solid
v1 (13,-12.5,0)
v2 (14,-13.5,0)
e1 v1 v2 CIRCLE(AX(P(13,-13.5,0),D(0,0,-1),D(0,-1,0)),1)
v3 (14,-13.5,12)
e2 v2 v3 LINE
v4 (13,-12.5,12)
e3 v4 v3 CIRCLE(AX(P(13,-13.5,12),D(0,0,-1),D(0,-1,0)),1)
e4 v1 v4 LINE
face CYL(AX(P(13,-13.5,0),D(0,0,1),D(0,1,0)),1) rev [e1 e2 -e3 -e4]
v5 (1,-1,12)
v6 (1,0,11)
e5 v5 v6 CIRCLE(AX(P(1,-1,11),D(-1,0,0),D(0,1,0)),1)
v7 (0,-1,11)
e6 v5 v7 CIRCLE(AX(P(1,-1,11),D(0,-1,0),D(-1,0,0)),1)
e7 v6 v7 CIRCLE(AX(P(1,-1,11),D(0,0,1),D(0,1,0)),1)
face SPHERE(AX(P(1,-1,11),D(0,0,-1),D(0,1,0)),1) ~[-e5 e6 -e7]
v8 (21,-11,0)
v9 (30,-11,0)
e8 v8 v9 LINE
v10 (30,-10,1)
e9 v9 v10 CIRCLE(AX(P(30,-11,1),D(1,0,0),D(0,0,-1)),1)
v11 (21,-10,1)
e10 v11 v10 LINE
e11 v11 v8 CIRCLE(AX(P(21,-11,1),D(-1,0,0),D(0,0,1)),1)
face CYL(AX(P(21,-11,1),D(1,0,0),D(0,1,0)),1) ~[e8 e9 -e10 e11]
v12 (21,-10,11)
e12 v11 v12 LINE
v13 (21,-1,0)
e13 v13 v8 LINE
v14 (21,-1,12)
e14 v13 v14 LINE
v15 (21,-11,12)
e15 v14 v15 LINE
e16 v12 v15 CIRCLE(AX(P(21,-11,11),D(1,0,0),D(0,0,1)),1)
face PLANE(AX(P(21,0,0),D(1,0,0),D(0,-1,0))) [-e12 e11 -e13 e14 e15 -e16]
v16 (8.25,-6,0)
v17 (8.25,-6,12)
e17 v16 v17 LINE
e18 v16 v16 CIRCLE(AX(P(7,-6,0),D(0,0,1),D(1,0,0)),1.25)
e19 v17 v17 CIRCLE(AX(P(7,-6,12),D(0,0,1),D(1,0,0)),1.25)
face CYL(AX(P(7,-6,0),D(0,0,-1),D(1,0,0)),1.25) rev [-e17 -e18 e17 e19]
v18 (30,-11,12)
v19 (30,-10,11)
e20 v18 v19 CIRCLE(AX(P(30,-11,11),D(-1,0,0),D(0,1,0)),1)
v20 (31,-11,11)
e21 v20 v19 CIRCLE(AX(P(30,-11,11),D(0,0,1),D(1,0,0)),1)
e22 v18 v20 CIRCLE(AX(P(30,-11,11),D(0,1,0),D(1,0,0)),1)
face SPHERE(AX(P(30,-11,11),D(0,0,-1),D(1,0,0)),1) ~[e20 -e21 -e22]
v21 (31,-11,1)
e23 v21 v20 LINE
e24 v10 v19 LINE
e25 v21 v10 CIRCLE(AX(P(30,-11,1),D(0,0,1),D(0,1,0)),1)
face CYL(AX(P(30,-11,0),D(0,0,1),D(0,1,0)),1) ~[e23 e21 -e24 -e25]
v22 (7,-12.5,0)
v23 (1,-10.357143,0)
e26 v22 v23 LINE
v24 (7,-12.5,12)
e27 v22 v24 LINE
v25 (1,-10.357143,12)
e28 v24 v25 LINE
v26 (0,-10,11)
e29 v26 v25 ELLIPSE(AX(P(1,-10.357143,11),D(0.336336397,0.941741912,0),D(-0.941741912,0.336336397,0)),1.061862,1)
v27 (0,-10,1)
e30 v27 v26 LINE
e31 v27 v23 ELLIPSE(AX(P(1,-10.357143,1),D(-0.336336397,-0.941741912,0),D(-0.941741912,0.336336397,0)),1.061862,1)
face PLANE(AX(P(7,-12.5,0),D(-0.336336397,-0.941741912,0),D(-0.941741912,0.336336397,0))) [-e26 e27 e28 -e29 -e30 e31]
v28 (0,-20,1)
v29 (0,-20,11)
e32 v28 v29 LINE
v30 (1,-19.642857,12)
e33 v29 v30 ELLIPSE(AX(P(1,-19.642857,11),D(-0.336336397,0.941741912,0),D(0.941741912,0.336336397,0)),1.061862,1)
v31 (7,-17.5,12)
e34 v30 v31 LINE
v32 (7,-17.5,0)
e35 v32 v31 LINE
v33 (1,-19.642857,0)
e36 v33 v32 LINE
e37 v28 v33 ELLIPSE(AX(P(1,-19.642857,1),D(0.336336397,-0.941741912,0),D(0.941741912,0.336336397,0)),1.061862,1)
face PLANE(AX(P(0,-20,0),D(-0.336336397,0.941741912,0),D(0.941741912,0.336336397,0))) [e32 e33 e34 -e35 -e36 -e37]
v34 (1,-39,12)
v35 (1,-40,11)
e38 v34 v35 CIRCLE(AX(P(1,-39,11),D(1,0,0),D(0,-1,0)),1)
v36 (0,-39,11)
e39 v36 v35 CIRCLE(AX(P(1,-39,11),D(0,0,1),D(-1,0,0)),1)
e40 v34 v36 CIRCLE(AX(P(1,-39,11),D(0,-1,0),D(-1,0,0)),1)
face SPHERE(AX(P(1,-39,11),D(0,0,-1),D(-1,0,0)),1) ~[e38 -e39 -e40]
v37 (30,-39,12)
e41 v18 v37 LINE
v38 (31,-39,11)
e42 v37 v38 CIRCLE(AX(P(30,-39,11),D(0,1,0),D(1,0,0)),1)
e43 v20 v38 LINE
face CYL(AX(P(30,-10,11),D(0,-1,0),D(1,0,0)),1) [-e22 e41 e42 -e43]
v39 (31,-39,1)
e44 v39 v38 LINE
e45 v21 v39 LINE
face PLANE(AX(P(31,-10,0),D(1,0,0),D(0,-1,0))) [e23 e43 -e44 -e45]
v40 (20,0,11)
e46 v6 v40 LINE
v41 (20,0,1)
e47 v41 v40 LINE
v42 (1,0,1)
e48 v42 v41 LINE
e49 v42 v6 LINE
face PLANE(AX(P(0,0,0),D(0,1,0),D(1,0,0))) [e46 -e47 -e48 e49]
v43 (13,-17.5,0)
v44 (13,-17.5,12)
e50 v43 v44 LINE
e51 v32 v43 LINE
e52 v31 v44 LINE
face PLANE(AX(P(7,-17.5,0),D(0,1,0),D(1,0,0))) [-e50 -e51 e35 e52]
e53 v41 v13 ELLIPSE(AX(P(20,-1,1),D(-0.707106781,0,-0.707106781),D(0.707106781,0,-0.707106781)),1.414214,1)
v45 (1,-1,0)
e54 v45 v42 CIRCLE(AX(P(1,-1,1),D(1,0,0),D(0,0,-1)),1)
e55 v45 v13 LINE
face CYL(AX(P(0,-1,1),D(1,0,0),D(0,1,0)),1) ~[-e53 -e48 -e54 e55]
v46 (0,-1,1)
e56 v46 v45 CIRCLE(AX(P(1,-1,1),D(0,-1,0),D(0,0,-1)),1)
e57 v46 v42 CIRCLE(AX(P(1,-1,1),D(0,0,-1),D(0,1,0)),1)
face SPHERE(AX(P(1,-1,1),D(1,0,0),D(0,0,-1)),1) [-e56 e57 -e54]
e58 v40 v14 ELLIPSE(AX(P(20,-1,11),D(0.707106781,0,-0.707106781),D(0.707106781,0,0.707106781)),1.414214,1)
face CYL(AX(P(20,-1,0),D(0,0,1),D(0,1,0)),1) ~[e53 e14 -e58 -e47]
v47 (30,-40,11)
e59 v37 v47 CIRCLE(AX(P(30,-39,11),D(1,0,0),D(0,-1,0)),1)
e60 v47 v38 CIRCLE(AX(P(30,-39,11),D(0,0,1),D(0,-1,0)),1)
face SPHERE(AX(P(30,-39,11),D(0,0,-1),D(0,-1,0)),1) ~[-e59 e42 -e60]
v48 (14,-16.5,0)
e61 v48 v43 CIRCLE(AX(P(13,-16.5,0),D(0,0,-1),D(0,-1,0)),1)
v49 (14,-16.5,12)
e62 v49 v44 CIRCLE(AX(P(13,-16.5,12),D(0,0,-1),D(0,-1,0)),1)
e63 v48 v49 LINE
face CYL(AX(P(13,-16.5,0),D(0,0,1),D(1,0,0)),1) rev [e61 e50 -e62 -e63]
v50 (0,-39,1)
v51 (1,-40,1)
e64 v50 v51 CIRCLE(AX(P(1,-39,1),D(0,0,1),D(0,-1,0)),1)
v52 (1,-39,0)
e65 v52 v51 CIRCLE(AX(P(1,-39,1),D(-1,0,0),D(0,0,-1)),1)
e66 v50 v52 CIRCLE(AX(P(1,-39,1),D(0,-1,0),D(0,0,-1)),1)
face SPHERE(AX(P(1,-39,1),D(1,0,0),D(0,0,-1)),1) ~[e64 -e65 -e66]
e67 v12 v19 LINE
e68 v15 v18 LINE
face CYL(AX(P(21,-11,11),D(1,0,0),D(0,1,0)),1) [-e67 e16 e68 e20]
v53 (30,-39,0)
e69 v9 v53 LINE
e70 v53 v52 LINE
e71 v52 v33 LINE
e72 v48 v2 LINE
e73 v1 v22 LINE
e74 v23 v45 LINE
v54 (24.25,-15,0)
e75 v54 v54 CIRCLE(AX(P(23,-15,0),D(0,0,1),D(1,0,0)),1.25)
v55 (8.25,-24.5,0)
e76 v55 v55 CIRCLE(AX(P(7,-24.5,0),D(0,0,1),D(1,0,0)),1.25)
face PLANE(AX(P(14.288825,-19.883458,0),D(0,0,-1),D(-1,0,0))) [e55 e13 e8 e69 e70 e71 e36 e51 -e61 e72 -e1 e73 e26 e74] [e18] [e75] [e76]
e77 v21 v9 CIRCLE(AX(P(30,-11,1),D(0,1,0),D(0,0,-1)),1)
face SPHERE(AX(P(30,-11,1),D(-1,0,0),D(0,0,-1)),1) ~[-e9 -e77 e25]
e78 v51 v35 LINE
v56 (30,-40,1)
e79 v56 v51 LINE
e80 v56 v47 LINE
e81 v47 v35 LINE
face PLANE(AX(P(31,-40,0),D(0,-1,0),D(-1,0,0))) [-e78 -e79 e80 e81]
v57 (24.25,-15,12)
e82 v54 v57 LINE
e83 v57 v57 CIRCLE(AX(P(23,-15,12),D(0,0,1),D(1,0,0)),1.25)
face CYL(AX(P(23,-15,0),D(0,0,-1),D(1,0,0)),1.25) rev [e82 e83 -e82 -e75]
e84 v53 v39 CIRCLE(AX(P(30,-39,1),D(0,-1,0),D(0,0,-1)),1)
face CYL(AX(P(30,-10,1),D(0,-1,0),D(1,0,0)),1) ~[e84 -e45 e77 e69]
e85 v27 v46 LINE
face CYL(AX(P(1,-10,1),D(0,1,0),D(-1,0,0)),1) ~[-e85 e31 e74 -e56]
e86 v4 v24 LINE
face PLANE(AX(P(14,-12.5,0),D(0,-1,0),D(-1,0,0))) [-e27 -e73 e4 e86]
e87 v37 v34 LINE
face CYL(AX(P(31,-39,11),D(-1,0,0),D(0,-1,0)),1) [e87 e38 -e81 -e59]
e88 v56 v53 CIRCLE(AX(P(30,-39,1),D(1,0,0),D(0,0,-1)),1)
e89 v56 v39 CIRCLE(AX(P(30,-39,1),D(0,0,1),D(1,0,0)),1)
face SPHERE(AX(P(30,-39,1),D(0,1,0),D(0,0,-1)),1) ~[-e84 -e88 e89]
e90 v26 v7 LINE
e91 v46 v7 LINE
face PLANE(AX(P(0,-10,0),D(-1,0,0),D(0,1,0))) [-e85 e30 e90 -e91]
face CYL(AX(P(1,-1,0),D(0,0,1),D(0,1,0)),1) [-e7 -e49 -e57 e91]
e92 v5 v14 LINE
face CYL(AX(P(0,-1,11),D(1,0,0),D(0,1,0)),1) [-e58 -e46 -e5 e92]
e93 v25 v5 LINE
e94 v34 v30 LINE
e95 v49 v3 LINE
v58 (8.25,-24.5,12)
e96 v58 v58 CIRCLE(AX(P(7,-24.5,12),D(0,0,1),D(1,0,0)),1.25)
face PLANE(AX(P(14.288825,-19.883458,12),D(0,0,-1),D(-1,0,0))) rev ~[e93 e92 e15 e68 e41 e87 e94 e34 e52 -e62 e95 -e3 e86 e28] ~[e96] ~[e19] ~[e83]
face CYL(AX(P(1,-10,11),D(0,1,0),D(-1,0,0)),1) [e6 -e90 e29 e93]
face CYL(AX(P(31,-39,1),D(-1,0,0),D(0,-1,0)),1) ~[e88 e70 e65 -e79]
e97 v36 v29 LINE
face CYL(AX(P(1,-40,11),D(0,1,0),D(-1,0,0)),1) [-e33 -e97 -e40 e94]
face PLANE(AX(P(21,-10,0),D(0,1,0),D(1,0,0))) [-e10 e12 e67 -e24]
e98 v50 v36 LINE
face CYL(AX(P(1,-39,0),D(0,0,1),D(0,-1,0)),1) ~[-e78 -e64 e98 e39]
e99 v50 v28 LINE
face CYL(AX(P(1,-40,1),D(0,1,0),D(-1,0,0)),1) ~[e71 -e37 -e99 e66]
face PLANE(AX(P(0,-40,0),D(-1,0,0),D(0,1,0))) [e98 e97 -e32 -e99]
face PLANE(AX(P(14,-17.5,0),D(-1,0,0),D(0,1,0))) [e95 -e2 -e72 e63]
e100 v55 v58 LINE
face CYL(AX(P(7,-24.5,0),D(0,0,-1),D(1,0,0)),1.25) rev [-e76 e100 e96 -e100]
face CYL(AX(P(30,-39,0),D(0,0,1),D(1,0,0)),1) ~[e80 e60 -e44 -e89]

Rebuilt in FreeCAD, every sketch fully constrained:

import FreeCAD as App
import Part
import Sketcher
Q = App.Units.Quantity


def edges_at(feature, points):
    """Names of the edges that pass closest to the given points."""
    edges = feature.Shape.Edges
    near = lambda p: min(range(len(edges)), key=lambda i: edges[i].distToShape(Part.Vertex(*p))[0])
    return sorted({f"Edge{near(p) + 1}" for p in points})

doc = App.newDocument("Part")
body = doc.addObject("PartDesign::Body", "Body")

# Sketch on XY plane
sketch1 = body.newObject("Sketcher::SketchObject", "Sketch")
sketch1.AttachmentSupport = (doc.getObject("XY_Plane"), [""])
sketch1.MapMode = "FlatFace"
sketch1.addGeometry([
    Part.LineSegment(App.Vector(21, 0, 0), App.Vector(0, 0, 0)),  # 0
    Part.LineSegment(App.Vector(0, 0, 0), App.Vector(0, -10, 0)),  # 1
    Part.LineSegment(App.Vector(0, -10, 0), App.Vector(7, -12.5, 0)),  # 2
    Part.LineSegment(App.Vector(7, -12.5, 0), App.Vector(14, -12.5, 0)),  # 3
    Part.LineSegment(App.Vector(14, -12.5, 0), App.Vector(14, -17.5, 0)),  # 4
    Part.LineSegment(App.Vector(14, -17.5, 0), App.Vector(7, -17.5, 0)),  # 5
    Part.LineSegment(App.Vector(7, -17.5, 0), App.Vector(0, -20, 0)),  # 6
    Part.LineSegment(App.Vector(0, -20, 0), App.Vector(0, -40, 0)),  # 7
    Part.LineSegment(App.Vector(0, -40, 0), App.Vector(31, -40, 0)),  # 8
    Part.LineSegment(App.Vector(31, -40, 0), App.Vector(31, -10, 0)),  # 9
    Part.LineSegment(App.Vector(31, -10, 0), App.Vector(21, -10, 0)),  # 10
    Part.LineSegment(App.Vector(21, -10, 0), App.Vector(21, 0, 0)),  # 11
    Part.Circle(App.Vector(7, -24.5, 0), App.Vector(0, 0, 1), 1.2),  # 12
    Part.Circle(App.Vector(23, -15, 0), App.Vector(0, 0, 1), 1.2),  # 13
    Part.Circle(App.Vector(7, -6, 0), App.Vector(0, 0, 1), 1.2),  # 14
], False)
sketch1.addConstraint([
    Sketcher.Constraint("Coincident", 0, 2, 1, 1),
    Sketcher.Constraint("Coincident", 1, 2, 2, 1),
    Sketcher.Constraint("Coincident", 2, 2, 3, 1),
    Sketcher.Constraint("Coincident", 3, 2, 4, 1),
    Sketcher.Constraint("Coincident", 4, 2, 5, 1),
    Sketcher.Constraint("Coincident", 5, 2, 6, 1),
    Sketcher.Constraint("Coincident", 6, 2, 7, 1),
    Sketcher.Constraint("Coincident", 7, 2, 8, 1),
    Sketcher.Constraint("Coincident", 8, 2, 9, 1),
    Sketcher.Constraint("Coincident", 9, 2, 10, 1),
    Sketcher.Constraint("Coincident", 10, 2, 11, 1),
    Sketcher.Constraint("Coincident", 11, 2, 0, 1),
    Sketcher.Constraint("Horizontal", 0),
    Sketcher.Constraint("Vertical", 1),
    Sketcher.Constraint("Horizontal", 3),
    Sketcher.Constraint("Vertical", 4),
    Sketcher.Constraint("Horizontal", 5),
    Sketcher.Constraint("Vertical", 7),
    Sketcher.Constraint("Horizontal", 8),
    Sketcher.Constraint("Vertical", 9),
    Sketcher.Constraint("Horizontal", 10),
    Sketcher.Constraint("Vertical", 11),
    Sketcher.Constraint("Coincident", 0, 2, -1, 1),
    Sketcher.Constraint("Equal", 12, 13),
    Sketcher.Constraint("Equal", 13, 14),
    Sketcher.Constraint("PointOnObject", 6, 2, -2),
    Sketcher.Constraint("Horizontal", 1, 2, 9, 2),
    Sketcher.Constraint("Vertical", 12, 3, 14, 3),
    Sketcher.Constraint("Vertical", 14, 3, 2, 2),
    Sketcher.Constraint("Vertical", 2, 2, 5, 2),
    Sketcher.Constraint("Equal", 10, 1),
    Sketcher.Constraint("Equal", 2, 6),
    Sketcher.Constraint("Diameter", 12, Q("2.5 mm")),
    Sketcher.Constraint("DistanceX", 0, 2, 0, 1, Q("21 mm")),
    Sketcher.Constraint("DistanceX", 3, 1, 3, 2, Q("7 mm")),
    Sketcher.Constraint("DistanceX", 8, 1, 8, 2, Q("31 mm")),
    Sketcher.Constraint("DistanceY", 4, 2, 4, 1, Q("5 mm")),
    Sketcher.Constraint("DistanceY", 7, 2, 7, 1, Q("20 mm")),
    Sketcher.Constraint("DistanceY", 9, 1, 9, 2, Q("30 mm")),
    Sketcher.Constraint("DistanceX", -1, 1, 12, 3, Q("7 mm")),
    Sketcher.Constraint("DistanceX", -1, 1, 13, 3, Q("23 mm")),
    Sketcher.Constraint("DistanceY", 13, 3, -1, 1, Q("15 mm")),
    Sketcher.Constraint("DistanceY", 14, 3, -1, 1, Q("6 mm")),
    Sketcher.Constraint("DistanceY", 12, 3, 2, 2, Q("12 mm")),
])
pad1 = body.newObject("PartDesign::Pad", "Pad")
pad1.Profile = sketch1
pad1.Length = 12
doc.recompute()

fillet = body.newObject("PartDesign::Fillet", "Fillet")
fillet.Base = (pad1, edges_at(pad1, [
    (10.5, 0, 0),
    (26, -10, 0),
    (31, -25, 0),
    (15.5, -40, 0),
    (0, -30, 0),
    (0, -5, 0),
    (0, 0, 6),
    (21, 0, 6),
    (31, -10, 6),
    (31, -40, 6),
    (0, -40, 6),
    (14, -17.5, 6),
    (14, -12.5, 6),
    (0, -30, 12),
    (15.5, -40, 12),
    (31, -25, 12),
    (26, -10, 12),
    (10.5, 0, 12),
    (0, -5, 12),
]))
fillet.Radius = 1

doc.recompute()
